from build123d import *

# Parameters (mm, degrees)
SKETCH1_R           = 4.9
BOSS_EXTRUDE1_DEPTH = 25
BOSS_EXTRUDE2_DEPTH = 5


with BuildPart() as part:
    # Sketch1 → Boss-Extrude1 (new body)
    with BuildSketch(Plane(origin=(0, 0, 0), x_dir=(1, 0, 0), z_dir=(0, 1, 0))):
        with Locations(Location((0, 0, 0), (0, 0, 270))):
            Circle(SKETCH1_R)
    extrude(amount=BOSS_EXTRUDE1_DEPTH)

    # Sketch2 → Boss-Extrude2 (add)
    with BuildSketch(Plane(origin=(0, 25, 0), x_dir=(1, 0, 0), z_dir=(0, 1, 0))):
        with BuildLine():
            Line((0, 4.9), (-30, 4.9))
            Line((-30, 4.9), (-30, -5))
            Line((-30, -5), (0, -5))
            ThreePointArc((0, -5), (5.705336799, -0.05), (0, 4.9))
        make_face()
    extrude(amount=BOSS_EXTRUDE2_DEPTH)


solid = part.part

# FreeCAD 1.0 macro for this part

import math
import FreeCAD as App
import Part
import Sketcher

V = App.Vector

doc = App.newDocument("Part")
params = doc.addObject("Spreadsheet::Sheet", "Params")
for row, (alias, value) in enumerate([
    ("sketch1_diameter", "9.8 mm"),
    ("pad1_length", "25 mm"),
    ("sketch2_radius", "5 mm"),
    ("sketch2_width", "30 mm"),
    ("sketch2_height", "9.9 mm"),
    ("pad2_length", "5 mm"),
], start=1):
    params.set(f"A{row}", alias)
    params.set(f"B{row}", "=" + value)
    params.setAlias(f"B{row}", alias)

body = doc.addObject("PartDesign::Body", "Body")

# Sketch on XZ plane
sketch1 = body.newObject("Sketcher::SketchObject", "Sketch")
sketch1.AttachmentSupport = (doc.getObject("XZ_Plane"), [""])
sketch1.MapMode = "FlatFace"
sketch1.addGeometry(Part.Circle(V(0, 0, 0), V(0, 0, 1), 4.9), False)
sketch1.addConstraint([
    Sketcher.Constraint("Coincident", 0, 3, -1, 1),
    Sketcher.Constraint("Diameter", 0, 9.8),
])
sketch1.setExpression("Constraints[1]", "Params.sketch1_diameter")
pad1 = body.newObject("PartDesign::Pad", "Pad")
pad1.Profile = sketch1
pad1.setExpression("Length", "Params.pad1_length")
pad1.Reversed = True

# Sketch on XZ plane
sketch2 = body.newObject("Sketcher::SketchObject", "Sketch001")
sketch2.AttachmentSupport = (doc.getObject("XZ_Plane"), [""])
sketch2.MapMode = "FlatFace"
sketch2.AttachmentOffset = App.Placement(V(0, 0, -25), App.Rotation())
sketch2.addGeometry([
    Part.LineSegment(V(0, -4.9, 0), V(-30, -4.9, 0)),
    Part.LineSegment(V(-30, -4.9, 0), V(-30, 5, 0)),
    Part.LineSegment(V(-30, 5, 0), V(0, 5, 0)),
    Part.ArcOfCircle(Part.Circle(V(0.705337, 0.05, 0), V(0, 0, 1), 5), math.radians(-98.109614), math.radians(98.109614)),
], False)
sketch2.addConstraint([
    Sketcher.Constraint("Coincident", 0, 2, 1, 1),
    Sketcher.Constraint("Coincident", 1, 2, 2, 1),
    Sketcher.Constraint("Coincident", 2, 2, 3, 2),
    Sketcher.Constraint("Coincident", 3, 1, 0, 1),
    Sketcher.Constraint("Horizontal", 0),
    Sketcher.Constraint("Vertical", 1),
    Sketcher.Constraint("Horizontal", 2),
    Sketcher.Constraint("PointOnObject", 2, 2, -2),
    Sketcher.Constraint("PointOnObject", 3, 1, -2),
    Sketcher.Constraint("Radius", 3, 5.0),
    Sketcher.Constraint("DistanceX", 0, 2, 0, 1, 30.0),
    Sketcher.Constraint("DistanceY", 1, 1, 1, 2, 9.9),
    Sketcher.Constraint("DistanceY", -1, 1, 1, 2, 5.0),
])
sketch2.setExpression("Constraints[9]", "Params.sketch2_radius")
sketch2.setExpression("Constraints[10]", "Params.sketch2_width")
sketch2.setExpression("Constraints[11]", "Params.sketch2_height")
pad2 = body.newObject("PartDesign::Pad", "Pad001")
pad2.Profile = sketch2
pad2.setExpression("Length", "Params.pad2_length")
pad2.Reversed = True

doc.recompute()
